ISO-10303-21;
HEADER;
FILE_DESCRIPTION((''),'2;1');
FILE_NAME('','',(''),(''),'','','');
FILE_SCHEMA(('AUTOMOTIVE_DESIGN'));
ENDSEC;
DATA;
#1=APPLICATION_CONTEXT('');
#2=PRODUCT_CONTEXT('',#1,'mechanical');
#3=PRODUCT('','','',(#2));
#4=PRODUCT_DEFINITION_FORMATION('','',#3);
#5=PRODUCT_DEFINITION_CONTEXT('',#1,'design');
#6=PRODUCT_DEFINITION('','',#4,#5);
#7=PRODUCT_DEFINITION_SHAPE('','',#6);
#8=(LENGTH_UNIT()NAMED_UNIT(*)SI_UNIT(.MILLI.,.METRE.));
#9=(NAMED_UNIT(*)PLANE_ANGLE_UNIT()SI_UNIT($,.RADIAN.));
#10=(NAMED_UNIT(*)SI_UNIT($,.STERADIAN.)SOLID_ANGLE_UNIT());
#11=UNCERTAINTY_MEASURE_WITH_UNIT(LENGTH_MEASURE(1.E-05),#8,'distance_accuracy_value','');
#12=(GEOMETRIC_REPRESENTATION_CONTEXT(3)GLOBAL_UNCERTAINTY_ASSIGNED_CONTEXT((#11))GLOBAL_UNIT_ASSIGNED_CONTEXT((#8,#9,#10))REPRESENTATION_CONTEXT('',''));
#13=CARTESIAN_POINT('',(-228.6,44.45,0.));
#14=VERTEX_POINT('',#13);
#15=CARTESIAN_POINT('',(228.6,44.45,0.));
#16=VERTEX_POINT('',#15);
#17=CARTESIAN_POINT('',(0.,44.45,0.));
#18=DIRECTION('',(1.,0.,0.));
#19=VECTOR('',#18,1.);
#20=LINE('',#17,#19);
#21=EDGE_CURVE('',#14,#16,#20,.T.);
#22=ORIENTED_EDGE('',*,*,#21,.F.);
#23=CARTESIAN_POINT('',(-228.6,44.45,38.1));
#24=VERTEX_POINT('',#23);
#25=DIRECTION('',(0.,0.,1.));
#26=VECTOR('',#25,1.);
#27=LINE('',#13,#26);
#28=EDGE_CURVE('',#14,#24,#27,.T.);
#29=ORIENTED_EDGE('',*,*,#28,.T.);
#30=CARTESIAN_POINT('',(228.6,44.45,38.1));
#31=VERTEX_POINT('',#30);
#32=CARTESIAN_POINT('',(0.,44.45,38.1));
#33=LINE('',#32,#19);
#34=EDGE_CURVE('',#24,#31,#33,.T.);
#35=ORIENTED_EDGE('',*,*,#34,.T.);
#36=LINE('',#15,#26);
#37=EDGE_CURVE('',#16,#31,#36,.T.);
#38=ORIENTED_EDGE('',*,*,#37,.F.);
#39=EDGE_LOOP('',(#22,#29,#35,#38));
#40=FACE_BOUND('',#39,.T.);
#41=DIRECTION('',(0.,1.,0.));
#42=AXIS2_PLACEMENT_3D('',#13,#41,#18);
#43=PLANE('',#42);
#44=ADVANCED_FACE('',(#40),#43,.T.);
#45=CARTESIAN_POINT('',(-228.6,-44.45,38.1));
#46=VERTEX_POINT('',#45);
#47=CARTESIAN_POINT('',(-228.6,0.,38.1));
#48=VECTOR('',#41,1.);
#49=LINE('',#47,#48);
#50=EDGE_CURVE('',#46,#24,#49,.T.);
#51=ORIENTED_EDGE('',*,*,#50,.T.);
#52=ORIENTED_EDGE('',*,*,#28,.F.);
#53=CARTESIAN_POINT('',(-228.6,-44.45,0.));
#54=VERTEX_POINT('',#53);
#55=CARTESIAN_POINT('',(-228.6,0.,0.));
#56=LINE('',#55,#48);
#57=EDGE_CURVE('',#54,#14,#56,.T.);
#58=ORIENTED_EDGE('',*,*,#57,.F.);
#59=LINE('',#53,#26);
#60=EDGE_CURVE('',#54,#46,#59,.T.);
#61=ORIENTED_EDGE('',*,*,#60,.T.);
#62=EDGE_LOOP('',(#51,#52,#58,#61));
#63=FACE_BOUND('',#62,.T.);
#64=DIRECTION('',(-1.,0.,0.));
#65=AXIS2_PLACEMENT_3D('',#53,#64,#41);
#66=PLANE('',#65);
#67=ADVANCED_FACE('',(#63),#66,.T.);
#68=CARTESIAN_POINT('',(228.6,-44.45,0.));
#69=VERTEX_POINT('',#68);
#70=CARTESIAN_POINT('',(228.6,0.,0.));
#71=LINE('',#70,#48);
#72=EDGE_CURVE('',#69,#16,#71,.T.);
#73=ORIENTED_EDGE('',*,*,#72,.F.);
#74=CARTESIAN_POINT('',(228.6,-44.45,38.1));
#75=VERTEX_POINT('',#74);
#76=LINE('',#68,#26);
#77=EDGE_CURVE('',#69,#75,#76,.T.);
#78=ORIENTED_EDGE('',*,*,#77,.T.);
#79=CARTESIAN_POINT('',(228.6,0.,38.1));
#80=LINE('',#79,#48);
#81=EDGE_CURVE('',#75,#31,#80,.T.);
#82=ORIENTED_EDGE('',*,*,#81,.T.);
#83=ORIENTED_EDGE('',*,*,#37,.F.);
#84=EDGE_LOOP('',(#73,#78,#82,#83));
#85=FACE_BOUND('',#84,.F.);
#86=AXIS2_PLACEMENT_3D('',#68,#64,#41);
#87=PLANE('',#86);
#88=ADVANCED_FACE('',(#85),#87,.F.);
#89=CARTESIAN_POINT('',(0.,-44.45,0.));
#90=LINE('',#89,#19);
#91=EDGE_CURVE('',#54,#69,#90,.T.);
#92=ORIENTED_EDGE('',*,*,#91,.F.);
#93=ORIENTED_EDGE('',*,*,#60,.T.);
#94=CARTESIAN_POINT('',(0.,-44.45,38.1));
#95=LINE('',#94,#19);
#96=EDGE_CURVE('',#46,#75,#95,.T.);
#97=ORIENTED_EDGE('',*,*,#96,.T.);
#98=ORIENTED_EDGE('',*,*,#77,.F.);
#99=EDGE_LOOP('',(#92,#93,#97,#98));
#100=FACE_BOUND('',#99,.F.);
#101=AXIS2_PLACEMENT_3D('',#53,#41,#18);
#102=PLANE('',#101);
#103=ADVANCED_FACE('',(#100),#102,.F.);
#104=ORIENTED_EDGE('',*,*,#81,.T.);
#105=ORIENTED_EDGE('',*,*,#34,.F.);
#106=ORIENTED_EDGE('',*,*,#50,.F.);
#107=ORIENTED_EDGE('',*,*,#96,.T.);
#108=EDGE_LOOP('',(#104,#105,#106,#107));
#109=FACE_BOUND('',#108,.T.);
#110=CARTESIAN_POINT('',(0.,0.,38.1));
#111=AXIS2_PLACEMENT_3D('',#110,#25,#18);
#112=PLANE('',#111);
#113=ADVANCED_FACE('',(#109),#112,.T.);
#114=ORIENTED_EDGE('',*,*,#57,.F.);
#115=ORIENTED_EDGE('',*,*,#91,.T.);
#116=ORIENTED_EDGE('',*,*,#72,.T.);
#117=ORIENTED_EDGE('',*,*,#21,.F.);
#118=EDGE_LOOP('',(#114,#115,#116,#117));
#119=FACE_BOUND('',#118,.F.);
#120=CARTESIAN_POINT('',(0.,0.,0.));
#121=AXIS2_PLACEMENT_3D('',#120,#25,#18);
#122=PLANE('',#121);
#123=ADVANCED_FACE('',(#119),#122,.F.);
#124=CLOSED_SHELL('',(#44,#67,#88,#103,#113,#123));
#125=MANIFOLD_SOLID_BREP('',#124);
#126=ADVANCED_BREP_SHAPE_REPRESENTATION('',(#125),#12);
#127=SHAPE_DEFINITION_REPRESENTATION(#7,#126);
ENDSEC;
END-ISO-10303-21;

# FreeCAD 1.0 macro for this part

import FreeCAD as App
import Part
import Sketcher
from FreeCAD import Vector
Q = App.Units.Quantity

doc = App.newDocument("Part")
body = doc.addObject("PartDesign::Body", "Body")

# Sketch on XY plane
sketch1 = doc.addObject("Sketcher::SketchObject", "Sketch")
body.addObject(sketch1)
sketch1.AttachmentSupport = (doc.XY_Plane, [""])
sketch1.MapMode = "FlatFace"
sketch1.addGeometry([
    Part.LineSegment(Vector(-229, 44, 0), Vector(-229, -44, 0)),
    Part.LineSegment(Vector(-229, -44, 0), Vector(229, -44, 0)),
    Part.LineSegment(Vector(229, -44, 0), Vector(229, 44, 0)),
    Part.LineSegment(Vector(229, 44, 0), Vector(-229, 44, 0)),
], False)
sketch1.addConstraint([
    Sketcher.Constraint("Coincident", 0, 2, 1, 1),
    Sketcher.Constraint("Coincident", 1, 2, 2, 1),
    Sketcher.Constraint("Coincident", 2, 2, 3, 1),
    Sketcher.Constraint("Coincident", 3, 2, 0, 1),
    Sketcher.Constraint("Vertical", 0),
    Sketcher.Constraint("Horizontal", 1),
    Sketcher.Constraint("Vertical", 2),
    Sketcher.Constraint("Horizontal", 3),
    Sketcher.Constraint("Symmetric", 0, 2, 2, 2, -1, 1),
    Sketcher.Constraint("DistanceX", 1, 1, 1, 2, Q("18 in")),
    Sketcher.Constraint("DistanceY", 0, 2, 0, 1, Q("3.5 in")),
])
pad1 = doc.addObject("PartDesign::Pad", "Pad")
body.addObject(pad1)
pad1.Profile = sketch1
pad1.Length = Q("1.5 in")

doc.recompute()
